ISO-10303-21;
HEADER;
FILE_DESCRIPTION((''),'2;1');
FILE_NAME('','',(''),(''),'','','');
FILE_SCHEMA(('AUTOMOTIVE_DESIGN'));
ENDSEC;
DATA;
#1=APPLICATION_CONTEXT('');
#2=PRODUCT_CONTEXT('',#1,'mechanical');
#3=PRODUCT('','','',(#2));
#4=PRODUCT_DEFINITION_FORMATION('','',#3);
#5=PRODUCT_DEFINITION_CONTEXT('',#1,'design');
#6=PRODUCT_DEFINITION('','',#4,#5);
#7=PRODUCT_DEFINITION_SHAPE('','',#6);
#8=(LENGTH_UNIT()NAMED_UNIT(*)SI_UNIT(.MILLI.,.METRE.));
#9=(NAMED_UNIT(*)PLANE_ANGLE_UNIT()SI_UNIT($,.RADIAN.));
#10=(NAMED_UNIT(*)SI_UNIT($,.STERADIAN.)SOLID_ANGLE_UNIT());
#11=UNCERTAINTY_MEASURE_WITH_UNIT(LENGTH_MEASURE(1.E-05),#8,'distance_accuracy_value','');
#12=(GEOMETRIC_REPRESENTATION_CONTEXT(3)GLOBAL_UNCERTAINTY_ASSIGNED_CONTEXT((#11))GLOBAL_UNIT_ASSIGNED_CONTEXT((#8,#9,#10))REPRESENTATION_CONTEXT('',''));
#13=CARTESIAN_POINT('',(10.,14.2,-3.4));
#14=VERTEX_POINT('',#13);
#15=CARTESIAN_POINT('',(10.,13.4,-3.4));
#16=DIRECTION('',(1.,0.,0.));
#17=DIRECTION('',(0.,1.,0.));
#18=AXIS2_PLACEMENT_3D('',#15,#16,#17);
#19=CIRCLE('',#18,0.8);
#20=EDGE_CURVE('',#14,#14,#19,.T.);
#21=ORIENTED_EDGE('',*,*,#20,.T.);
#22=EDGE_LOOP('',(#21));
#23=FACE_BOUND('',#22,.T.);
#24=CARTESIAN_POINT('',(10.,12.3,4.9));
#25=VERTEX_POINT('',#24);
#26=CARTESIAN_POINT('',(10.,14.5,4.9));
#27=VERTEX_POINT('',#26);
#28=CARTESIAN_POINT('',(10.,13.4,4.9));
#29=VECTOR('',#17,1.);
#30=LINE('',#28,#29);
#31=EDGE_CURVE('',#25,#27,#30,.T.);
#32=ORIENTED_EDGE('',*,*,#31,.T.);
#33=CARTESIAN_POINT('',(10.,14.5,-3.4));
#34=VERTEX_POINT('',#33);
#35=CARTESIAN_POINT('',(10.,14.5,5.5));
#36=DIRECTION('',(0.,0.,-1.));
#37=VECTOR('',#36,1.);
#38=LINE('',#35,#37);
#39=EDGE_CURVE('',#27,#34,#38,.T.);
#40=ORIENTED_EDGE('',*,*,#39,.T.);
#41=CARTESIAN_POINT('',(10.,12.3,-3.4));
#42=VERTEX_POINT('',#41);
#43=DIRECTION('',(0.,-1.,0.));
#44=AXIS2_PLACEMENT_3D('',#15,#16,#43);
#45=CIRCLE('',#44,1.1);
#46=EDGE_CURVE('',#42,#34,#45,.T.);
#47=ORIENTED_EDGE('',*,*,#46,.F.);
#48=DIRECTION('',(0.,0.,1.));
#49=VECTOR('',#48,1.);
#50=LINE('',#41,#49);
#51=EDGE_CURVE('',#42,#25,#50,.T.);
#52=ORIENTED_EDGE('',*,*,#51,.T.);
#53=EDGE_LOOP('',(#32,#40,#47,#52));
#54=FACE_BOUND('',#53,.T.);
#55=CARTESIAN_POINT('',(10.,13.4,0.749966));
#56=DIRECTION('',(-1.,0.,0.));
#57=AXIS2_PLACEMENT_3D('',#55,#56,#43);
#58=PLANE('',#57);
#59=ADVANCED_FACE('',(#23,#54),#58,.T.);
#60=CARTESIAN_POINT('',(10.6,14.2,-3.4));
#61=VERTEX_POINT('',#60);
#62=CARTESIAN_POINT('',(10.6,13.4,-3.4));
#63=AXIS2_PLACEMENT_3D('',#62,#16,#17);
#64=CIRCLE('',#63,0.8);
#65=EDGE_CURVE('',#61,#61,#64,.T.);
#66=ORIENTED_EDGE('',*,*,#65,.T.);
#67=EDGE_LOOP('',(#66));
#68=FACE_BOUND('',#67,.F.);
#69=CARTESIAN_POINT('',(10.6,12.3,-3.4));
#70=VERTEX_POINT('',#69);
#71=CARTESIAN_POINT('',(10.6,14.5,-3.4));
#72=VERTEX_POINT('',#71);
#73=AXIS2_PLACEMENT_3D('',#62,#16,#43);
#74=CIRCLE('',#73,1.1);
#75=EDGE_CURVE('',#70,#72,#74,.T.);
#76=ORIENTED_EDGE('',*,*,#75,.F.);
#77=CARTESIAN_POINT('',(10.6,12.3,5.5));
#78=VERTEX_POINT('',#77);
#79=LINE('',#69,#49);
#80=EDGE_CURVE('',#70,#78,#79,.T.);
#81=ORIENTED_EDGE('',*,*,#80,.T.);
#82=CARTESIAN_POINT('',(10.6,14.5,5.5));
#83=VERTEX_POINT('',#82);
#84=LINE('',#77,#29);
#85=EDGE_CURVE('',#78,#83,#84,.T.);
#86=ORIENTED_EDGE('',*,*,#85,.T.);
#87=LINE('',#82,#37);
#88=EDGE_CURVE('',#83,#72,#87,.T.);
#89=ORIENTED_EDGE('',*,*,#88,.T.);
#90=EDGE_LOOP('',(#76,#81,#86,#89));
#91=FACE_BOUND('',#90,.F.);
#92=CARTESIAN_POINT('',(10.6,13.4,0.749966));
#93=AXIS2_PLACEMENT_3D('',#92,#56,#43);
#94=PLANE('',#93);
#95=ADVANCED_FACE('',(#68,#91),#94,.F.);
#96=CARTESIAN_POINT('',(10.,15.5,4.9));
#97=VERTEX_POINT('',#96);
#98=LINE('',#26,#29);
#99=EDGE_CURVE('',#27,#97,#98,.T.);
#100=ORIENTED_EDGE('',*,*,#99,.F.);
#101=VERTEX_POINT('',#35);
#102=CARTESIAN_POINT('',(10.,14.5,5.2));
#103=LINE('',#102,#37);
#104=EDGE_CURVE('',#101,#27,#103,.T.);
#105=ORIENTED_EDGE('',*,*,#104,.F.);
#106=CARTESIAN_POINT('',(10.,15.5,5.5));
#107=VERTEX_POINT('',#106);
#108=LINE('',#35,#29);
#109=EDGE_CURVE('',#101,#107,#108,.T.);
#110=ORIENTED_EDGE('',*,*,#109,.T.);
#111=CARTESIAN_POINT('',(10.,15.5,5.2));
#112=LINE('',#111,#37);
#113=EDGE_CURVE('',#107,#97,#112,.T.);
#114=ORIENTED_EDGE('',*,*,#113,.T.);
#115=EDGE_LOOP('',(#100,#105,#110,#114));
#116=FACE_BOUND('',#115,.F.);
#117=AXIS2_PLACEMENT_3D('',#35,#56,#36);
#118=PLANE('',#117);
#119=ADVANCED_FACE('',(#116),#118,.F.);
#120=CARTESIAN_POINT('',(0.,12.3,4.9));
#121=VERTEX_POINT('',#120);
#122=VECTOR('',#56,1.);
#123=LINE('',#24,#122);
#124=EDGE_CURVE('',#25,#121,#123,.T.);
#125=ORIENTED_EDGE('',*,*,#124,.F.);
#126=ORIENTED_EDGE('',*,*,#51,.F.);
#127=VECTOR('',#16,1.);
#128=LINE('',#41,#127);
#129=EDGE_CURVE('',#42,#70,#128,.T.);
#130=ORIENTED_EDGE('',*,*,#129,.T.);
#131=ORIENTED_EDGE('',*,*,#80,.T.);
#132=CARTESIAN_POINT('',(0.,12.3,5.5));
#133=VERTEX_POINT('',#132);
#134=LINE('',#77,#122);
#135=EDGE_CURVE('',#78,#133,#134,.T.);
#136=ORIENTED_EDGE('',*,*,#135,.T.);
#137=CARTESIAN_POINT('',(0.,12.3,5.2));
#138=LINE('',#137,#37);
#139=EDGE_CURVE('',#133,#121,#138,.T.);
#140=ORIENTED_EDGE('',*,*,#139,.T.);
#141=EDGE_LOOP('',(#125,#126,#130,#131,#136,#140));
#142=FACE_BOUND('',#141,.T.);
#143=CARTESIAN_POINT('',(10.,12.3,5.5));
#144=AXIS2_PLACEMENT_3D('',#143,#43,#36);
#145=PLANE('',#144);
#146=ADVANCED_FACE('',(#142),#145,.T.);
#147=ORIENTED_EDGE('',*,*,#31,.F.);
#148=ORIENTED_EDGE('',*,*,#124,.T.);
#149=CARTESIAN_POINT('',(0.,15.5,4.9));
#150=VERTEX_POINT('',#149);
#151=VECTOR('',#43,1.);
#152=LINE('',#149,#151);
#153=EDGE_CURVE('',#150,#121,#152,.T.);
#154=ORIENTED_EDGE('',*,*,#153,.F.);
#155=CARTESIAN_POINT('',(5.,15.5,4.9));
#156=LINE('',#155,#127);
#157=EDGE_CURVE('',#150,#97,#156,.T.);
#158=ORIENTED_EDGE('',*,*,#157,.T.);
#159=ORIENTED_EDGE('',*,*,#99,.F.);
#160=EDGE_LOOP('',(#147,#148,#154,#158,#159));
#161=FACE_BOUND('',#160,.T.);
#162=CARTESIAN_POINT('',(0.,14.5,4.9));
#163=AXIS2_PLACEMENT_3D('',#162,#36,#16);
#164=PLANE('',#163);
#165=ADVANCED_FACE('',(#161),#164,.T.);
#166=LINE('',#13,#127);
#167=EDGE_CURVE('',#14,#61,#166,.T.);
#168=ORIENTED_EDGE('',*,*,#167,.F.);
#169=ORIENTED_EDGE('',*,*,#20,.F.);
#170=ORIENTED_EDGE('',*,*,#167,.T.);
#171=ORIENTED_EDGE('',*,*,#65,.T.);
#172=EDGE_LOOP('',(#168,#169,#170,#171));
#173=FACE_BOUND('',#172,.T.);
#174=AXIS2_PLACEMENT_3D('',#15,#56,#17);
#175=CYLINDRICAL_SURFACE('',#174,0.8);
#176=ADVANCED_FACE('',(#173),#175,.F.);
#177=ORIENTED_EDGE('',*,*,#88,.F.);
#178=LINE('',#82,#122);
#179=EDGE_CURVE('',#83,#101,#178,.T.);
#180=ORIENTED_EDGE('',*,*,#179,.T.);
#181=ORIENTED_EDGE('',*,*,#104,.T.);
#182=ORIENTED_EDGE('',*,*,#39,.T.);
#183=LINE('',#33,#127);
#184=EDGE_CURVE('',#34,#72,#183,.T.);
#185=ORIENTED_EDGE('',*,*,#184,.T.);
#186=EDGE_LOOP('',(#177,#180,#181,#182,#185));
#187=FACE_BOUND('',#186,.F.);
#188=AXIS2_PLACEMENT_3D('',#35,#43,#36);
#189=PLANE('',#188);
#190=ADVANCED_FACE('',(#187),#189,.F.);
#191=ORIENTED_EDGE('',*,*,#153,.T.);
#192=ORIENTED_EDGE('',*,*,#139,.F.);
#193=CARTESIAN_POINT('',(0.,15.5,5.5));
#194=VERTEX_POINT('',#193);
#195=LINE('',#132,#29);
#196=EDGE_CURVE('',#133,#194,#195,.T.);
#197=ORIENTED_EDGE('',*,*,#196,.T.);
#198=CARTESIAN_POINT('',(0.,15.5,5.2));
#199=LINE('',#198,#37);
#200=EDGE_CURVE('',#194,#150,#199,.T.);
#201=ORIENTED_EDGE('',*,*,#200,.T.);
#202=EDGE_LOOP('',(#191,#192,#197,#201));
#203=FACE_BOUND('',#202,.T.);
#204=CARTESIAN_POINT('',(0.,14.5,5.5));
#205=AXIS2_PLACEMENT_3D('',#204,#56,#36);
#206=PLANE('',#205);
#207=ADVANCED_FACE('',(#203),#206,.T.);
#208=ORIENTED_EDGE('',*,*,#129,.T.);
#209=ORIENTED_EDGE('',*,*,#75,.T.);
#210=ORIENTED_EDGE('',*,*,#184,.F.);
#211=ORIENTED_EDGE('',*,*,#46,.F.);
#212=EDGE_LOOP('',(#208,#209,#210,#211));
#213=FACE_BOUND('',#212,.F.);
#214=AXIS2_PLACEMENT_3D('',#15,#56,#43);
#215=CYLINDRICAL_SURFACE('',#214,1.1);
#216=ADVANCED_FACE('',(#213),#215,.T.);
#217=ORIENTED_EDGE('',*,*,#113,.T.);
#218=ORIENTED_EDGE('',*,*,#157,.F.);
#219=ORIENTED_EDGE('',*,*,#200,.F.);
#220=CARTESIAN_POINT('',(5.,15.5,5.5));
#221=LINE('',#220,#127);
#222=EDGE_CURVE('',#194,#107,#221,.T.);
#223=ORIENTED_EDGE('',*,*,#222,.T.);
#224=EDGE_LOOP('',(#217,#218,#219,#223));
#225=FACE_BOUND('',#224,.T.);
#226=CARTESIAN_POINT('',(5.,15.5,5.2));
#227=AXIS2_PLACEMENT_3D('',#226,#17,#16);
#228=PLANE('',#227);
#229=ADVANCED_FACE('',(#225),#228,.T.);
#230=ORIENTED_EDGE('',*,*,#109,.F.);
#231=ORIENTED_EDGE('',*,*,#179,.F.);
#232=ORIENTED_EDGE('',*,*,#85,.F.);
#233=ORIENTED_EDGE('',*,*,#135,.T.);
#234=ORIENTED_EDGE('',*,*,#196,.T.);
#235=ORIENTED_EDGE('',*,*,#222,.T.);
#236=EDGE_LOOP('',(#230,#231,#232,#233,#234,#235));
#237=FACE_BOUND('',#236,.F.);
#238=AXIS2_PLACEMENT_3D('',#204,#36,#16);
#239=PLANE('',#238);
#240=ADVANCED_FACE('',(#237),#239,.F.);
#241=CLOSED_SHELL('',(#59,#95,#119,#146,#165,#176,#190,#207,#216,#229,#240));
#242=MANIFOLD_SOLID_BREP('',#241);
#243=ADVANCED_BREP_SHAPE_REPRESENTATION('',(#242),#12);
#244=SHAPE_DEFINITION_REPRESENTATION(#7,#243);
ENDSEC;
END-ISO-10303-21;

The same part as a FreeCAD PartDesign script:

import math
import FreeCAD as App
import Part
import Sketcher
from FreeCAD import Vector


def add_polygon(sketch, points):
    """Adds a closed chain of lines whose ends are joined by coincident constraints."""
    first, n = sketch.GeometryCount, len(points)
    for a, b in zip(points, points[1:] + points[:1]):
        sketch.addGeometry(Part.LineSegment(App.Vector(*a, 0), App.Vector(*b, 0)), False)
    for i in range(n):
        sketch.addConstraint(Sketcher.Constraint("Coincident", first + i, 2, first + (i + 1) % n, 1))

doc = App.newDocument("Part")
body = doc.addObject("PartDesign::Body", "Body")

# Sketch on YZ plane
sketch1 = body.newObject("Sketcher::SketchObject", "Sketch")
sketch1.AttachmentSupport = (doc.getObject("YZ_Plane"), [""])
sketch1.MapMode = "FlatFace"
sketch1.addGeometry(Part.LineSegment(Vector(0, 0, 0), Vector(0, -8.9, 0)), False)
sketch1.addGeometry(Part.ArcOfCircle(Part.Circle(Vector(1.1, -8.9, 0), Vector(0, 0, 1), 1.1), math.radians(180), math.radians(360)), False)
sketch1.addGeometry(Part.LineSegment(Vector(2.2, -8.9, 0), Vector(2.2, 0, 0)), False)
sketch1.addGeometry(Part.LineSegment(Vector(2.2, 0, 0), Vector(0, 0, 0)), False)
sketch1.addGeometry(Part.Circle(Vector(1.1, -8.9, 0), Vector(0, 0, 1), 0.8), False)
sketch1.addConstraint(Sketcher.Constraint("Tangent", 0, 2, 1, 1))
sketch1.addConstraint(Sketcher.Constraint("Tangent", 1, 2, 2, 1))
sketch1.addConstraint(Sketcher.Constraint("Coincident", 2, 2, 3, 1))
sketch1.addConstraint(Sketcher.Constraint("Coincident", 3, 2, 0, 1))
sketch1.addConstraint(Sketcher.Constraint("Vertical", 0))
sketch1.addConstraint(Sketcher.Constraint("Vertical", 2))
sketch1.addConstraint(Sketcher.Constraint("Horizontal", 3))
sketch1.addConstraint(Sketcher.Constraint("Coincident", 3, 2, -1, 1))
sketch1.addConstraint(Sketcher.Constraint("Coincident", 4, 3, 1, 3))
sketch1.addConstraint(Sketcher.Constraint("Diameter", 4, 1.6))
sketch1.addConstraint(Sketcher.Constraint("Radius", 1, 1.1))
sketch1.addConstraint(Sketcher.Constraint("DistanceY", 0, 2, 0, 1, 8.9))
pad1 = body.newObject("PartDesign::Pad", "Pad")
pad1.Profile = sketch1
pad1.Length = 0.6

# Sketch on YZ plane
sketch2 = body.newObject("Sketcher::SketchObject", "Sketch001")
sketch2.AttachmentSupport = (doc.getObject("YZ_Plane"), [""])
sketch2.MapMode = "FlatFace"
add_polygon(sketch2, [(0, -0.6), (0, 0), (2.2, 0), (2.2, -0.6)])  # lines 0-3
sketch2.addConstraint(Sketcher.Constraint("Vertical", 0))
sketch2.addConstraint(Sketcher.Constraint("Horizontal", 1))
sketch2.addConstraint(Sketcher.Constraint("Vertical", 2))
sketch2.addConstraint(Sketcher.Constraint("Horizontal", 3))
sketch2.addConstraint(Sketcher.Constraint("Coincident", 0, 2, -1, 1))
sketch2.addConstraint(Sketcher.Constraint("DistanceX", 1, 1, 1, 2, 2.2))
sketch2.addConstraint(Sketcher.Constraint("DistanceY", 0, 1, 0, 2, 0.6))
pad2 = body.newObject("PartDesign::Pad", "Pad001")
pad2.Profile = sketch2
pad2.Length = 10
pad2.Reversed = True

# Sketch on XZ plane
sketch3 = body.newObject("Sketcher::SketchObject", "Sketch002")
sketch3.AttachmentSupport = (doc.getObject("XZ_Plane"), [""])
sketch3.MapMode = "FlatFace"
sketch3.AttachmentOffset = App.Placement(Vector(0, 0, -2.2), App.Rotation())
add_polygon(sketch3, [(-10, -0.6), (-10, 0), (0, 0), (0, -0.6)])  # lines 0-3
sketch3.addConstraint(Sketcher.Constraint("Vertical", 0))
sketch3.addConstraint(Sketcher.Constraint("Horizontal", 1))
sketch3.addConstraint(Sketcher.Constraint("Vertical", 2))
sketch3.addConstraint(Sketcher.Constraint("Horizontal", 3))
sketch3.addConstraint(Sketcher.Constraint("Coincident", 1, 2, -1, 1))
sketch3.addConstraint(Sketcher.Constraint("DistanceX", 1, 1, 1, 2, 10.0))
sketch3.addConstraint(Sketcher.Constraint("DistanceY", 0, 1, 0, 2, 0.6))
pad3 = body.newObject("PartDesign::Pad", "Pad002")
pad3.Profile = sketch3
pad3.Length = 1
pad3.Reversed = True
body2 = doc.addObject("PartDesign::Body", "Body001")
doc.recompute()

body.Placement = App.Placement(Vector(10, 12.3, 5.5), App.Rotation(Vector(0, 0, 1), 0))
boolean = body2.newObject("PartDesign::Boolean", "Boolean")
boolean.Type = "Fuse"
boolean.addObjects([body])

doc.recompute()
